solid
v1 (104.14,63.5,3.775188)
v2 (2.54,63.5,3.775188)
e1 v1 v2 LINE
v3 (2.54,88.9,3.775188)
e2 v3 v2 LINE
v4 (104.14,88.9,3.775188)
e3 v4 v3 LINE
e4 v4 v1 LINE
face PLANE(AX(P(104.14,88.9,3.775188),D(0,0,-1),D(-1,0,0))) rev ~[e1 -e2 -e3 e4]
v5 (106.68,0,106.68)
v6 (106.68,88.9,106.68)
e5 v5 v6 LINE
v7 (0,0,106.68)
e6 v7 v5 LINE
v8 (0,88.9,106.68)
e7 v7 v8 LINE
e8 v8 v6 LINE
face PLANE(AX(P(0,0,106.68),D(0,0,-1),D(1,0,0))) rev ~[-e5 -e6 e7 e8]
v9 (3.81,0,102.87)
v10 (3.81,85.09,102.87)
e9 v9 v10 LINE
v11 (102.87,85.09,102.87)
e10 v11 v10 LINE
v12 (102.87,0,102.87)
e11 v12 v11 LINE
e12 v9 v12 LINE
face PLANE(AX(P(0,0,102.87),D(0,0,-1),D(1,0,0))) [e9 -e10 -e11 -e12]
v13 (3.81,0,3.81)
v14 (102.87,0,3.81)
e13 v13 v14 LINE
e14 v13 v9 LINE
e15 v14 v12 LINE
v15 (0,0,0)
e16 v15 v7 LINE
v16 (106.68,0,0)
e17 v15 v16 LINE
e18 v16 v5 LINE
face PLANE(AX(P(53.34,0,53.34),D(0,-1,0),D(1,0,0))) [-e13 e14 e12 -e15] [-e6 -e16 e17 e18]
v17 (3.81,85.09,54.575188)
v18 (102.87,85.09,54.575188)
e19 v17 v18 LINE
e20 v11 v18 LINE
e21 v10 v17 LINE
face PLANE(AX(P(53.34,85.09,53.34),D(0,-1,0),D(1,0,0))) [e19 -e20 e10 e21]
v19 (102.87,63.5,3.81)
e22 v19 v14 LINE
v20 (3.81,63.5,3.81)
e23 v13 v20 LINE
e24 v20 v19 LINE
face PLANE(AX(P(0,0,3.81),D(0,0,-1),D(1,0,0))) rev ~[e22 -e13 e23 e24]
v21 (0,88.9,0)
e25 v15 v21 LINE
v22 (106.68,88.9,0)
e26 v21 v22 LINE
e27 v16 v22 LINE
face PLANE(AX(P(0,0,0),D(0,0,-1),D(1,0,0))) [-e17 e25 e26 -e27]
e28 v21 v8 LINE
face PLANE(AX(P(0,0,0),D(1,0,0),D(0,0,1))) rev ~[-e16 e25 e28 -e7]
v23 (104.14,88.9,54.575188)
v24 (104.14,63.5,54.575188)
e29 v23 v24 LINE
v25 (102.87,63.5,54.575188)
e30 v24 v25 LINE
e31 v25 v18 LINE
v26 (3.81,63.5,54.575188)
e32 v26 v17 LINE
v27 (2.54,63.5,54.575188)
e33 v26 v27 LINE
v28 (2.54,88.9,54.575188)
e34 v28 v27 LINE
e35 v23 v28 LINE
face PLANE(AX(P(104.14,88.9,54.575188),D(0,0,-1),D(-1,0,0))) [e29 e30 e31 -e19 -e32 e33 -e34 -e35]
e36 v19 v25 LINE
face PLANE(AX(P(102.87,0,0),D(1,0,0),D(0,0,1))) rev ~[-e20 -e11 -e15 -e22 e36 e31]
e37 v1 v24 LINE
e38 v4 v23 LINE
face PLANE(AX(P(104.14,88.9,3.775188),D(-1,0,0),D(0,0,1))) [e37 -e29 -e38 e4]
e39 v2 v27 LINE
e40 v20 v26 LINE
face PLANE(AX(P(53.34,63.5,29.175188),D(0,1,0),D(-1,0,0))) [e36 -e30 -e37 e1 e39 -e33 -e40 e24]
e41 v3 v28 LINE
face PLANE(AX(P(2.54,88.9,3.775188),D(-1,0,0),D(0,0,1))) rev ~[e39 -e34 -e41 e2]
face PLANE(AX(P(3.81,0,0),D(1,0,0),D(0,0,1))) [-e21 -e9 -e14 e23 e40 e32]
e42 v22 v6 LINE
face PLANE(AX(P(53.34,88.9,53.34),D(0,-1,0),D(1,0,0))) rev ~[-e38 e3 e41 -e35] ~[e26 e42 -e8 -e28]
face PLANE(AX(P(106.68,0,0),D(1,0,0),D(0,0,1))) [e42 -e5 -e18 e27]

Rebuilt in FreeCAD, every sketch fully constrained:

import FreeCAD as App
import Part
import Sketcher
Q = App.Units.Quantity


def faces_at(feature, points):
    """Names of the faces that lie closest to the given points."""
    faces = feature.Shape.Faces
    near = lambda p: min(range(len(faces)), key=lambda i: faces[i].distToShape(Part.Vertex(*p))[0])
    return sorted({f"Face{near(p) + 1}" for p in points})


def add_polygon(sketch, points):
    """Adds a closed chain of lines whose ends are joined by coincident constraints."""
    first, n = sketch.GeometryCount, len(points)
    for a, b in zip(points, points[1:] + points[:1]):
        sketch.addGeometry(Part.LineSegment(App.Vector(*a, 0), App.Vector(*b, 0)), False)
    for i in range(n):
        sketch.addConstraint(Sketcher.Constraint("Coincident", first + i, 2, first + (i + 1) % n, 1))

doc = App.newDocument("Part")
body = doc.addObject("PartDesign::Body", "Body")

# Sketch on XZ plane
sketch1 = body.newObject("Sketcher::SketchObject", "Sketch")
sketch1.AttachmentSupport = (doc.getObject("XZ_Plane"), [""])
sketch1.MapMode = "FlatFace"
add_polygon(sketch1, [(0, 107), (0, 0), (107, 0), (107, 107)])  # lines 0-3
sketch1.addConstraint(Sketcher.Constraint("Vertical", 0))
sketch1.addConstraint(Sketcher.Constraint("Horizontal", 1))
sketch1.addConstraint(Sketcher.Constraint("Vertical", 2))
sketch1.addConstraint(Sketcher.Constraint("Horizontal", 3))
sketch1.addConstraint(Sketcher.Constraint("Coincident", 0, 2, -1, 1))
sketch1.addConstraint(Sketcher.Constraint("Equal", 3, 0))
sketch1.addConstraint(Sketcher.Constraint("DistanceX", 1, 1, 1, 2, Q("4.2 in")))
pad1 = body.newObject("PartDesign::Pad", "Pad")
pad1.Profile = sketch1
pad1.Length = Q("3.5 in")
pad1.Reversed = True
doc.recompute()

thickness = body.newObject("PartDesign::Thickness", "Thickness")
thickness.Base = (pad1, faces_at(pad1, [(53.34, 0, 53.34)]))
thickness.Value = Q("0.15 in")
thickness.Reversed = True
thickness.Join = "Arc"

# Sketch on XZ plane
sketch2 = body.newObject("Sketcher::SketchObject", "Sketch001")
sketch2.AttachmentSupport = (doc.getObject("XZ_Plane"), [""])
sketch2.MapMode = "FlatFace"
sketch2.AttachmentOffset = App.Placement(App.Vector(0, 0, -3.5 * 25.4), App.Rotation())
add_polygon(sketch2, [(104, 55), (104, 4), (3, 4), (3, 55)])  # lines 0-3
sketch2.addConstraint(Sketcher.Constraint("Vertical", 0))
sketch2.addConstraint(Sketcher.Constraint("Horizontal", 1))
sketch2.addConstraint(Sketcher.Constraint("Vertical", 2))
sketch2.addConstraint(Sketcher.Constraint("Horizontal", 3))
sketch2.addConstraint(Sketcher.Constraint("DistanceX", 1, 2, 1, 1, Q("4 in")))
sketch2.addConstraint(Sketcher.Constraint("DistanceY", 0, 2, 0, 1, Q("2 in")))
sketch2.addConstraint(Sketcher.Constraint("DistanceX", -1, 1, 0, 2, Q("4.1 in")))
sketch2.addConstraint(Sketcher.Constraint("DistanceY", -1, 1, 0, 2, 3.775188))
pocket1 = body.newObject("PartDesign::Pocket", "Pocket")
pocket1.Profile = sketch2
pocket1.Length = Q("1 in")
pocket1.Reversed = True

doc.recompute()
